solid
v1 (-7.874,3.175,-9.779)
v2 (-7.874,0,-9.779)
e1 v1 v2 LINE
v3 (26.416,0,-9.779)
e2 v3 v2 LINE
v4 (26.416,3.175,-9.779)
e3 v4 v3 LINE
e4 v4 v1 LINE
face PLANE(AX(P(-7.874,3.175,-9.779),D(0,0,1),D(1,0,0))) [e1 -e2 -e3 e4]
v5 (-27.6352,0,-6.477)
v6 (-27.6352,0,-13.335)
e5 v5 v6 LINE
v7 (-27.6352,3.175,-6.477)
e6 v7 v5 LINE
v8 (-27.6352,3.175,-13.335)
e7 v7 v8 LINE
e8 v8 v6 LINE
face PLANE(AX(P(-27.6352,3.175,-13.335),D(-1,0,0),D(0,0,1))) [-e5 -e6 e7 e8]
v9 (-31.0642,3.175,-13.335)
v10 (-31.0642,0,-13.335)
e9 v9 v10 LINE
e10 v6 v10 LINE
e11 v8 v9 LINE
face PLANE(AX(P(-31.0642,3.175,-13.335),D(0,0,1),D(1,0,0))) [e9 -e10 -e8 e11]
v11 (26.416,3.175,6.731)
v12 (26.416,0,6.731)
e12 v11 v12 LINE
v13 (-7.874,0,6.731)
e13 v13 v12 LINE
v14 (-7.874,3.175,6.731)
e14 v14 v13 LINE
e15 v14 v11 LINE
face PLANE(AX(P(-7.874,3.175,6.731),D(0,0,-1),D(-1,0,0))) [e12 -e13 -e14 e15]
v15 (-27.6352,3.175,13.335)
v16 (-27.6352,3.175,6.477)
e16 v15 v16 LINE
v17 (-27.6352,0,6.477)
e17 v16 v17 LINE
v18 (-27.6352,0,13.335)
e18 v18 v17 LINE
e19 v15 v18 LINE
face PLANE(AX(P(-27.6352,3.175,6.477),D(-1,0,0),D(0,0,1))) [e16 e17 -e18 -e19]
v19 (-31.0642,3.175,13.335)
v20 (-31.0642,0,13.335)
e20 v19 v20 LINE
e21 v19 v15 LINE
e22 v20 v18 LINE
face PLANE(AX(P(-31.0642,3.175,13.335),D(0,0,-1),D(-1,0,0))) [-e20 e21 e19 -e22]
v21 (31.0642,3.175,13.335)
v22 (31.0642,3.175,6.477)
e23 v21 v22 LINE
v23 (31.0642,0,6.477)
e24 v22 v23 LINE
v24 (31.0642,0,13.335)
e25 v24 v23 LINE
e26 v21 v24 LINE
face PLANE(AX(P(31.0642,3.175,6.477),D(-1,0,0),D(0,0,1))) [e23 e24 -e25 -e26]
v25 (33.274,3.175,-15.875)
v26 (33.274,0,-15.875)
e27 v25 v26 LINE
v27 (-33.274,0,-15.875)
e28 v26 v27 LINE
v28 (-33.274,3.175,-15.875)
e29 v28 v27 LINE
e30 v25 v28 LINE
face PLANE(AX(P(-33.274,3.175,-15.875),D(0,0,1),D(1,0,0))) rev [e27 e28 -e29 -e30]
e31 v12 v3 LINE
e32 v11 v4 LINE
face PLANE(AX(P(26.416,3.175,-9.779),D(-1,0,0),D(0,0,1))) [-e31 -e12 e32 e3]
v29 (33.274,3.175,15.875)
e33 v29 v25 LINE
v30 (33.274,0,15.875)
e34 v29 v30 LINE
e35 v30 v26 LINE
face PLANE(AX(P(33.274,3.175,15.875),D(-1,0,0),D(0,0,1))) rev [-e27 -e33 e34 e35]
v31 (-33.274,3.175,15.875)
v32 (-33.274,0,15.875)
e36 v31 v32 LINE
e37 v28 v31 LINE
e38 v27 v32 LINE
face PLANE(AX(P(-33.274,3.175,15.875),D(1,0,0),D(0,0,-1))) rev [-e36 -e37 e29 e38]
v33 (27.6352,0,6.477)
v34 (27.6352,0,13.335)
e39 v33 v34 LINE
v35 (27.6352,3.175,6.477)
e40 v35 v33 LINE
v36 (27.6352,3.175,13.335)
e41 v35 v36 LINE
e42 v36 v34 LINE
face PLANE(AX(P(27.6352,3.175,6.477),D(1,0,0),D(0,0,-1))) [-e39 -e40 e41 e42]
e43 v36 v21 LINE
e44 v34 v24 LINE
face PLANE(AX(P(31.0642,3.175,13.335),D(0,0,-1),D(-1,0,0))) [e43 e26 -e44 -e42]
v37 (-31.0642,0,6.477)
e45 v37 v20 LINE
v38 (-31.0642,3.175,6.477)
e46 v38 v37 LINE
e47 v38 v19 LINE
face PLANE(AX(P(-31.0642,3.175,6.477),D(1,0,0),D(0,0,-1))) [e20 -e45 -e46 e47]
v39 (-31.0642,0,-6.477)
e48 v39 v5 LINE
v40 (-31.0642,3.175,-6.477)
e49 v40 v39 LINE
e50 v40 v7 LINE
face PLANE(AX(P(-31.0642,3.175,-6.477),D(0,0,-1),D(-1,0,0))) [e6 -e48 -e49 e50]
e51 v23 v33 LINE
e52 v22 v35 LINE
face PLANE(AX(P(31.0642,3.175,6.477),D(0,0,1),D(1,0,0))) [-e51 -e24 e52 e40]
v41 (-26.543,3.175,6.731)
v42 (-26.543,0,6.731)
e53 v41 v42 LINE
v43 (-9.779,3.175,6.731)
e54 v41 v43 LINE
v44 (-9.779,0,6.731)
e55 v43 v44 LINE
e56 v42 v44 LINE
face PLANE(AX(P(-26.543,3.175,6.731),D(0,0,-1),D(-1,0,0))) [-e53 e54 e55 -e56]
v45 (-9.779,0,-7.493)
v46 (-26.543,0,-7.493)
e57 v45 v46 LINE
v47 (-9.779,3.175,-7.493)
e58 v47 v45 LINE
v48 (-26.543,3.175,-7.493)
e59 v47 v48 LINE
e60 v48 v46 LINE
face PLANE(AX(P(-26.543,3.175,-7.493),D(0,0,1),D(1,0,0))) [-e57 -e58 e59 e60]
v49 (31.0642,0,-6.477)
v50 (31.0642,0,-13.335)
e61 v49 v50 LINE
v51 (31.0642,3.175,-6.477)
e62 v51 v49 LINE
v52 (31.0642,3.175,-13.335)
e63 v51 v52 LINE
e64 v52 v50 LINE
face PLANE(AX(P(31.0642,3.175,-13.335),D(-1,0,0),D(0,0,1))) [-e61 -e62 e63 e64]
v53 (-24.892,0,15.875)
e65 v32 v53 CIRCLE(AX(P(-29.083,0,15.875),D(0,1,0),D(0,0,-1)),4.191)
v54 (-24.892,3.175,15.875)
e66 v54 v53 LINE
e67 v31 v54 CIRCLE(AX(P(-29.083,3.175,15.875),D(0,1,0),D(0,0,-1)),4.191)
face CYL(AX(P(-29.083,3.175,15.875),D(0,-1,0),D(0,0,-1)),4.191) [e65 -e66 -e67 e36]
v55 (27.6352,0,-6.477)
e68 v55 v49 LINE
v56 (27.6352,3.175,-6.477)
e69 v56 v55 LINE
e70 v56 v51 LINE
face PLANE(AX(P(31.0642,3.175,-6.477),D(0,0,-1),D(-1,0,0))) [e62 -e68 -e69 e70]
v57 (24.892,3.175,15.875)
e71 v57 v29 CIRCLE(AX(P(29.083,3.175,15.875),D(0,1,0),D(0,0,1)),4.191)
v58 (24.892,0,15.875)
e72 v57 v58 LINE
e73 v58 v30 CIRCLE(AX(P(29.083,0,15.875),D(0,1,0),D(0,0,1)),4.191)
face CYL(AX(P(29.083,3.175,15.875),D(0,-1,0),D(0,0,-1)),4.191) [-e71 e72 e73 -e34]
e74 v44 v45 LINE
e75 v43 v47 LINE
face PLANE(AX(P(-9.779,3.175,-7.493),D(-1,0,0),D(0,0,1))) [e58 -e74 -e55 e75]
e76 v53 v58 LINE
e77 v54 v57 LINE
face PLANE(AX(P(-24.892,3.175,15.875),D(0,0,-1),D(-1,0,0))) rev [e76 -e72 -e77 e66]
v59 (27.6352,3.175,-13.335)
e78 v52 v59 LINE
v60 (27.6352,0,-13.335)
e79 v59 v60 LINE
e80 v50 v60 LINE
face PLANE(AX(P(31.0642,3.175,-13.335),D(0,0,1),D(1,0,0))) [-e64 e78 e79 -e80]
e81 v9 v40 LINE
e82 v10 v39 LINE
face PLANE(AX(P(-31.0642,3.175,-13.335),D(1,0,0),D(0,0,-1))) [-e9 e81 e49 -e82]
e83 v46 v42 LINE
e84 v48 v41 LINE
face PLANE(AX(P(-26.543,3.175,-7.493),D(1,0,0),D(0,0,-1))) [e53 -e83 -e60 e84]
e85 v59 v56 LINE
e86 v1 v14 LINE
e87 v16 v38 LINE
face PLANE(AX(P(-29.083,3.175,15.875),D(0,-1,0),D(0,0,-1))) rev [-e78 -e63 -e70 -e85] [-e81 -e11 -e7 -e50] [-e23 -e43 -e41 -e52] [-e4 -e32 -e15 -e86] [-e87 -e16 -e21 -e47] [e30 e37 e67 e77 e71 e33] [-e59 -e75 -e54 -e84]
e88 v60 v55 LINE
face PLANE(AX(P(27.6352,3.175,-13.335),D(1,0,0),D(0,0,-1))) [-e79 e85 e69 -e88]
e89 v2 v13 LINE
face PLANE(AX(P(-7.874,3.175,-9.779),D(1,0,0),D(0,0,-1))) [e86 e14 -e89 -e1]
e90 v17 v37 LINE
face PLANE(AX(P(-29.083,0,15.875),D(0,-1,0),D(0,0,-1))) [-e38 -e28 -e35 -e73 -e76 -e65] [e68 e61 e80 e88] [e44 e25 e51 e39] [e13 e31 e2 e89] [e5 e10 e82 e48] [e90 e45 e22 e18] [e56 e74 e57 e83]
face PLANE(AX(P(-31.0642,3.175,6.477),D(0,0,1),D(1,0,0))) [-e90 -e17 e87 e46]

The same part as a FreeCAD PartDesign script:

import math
import FreeCAD as App
import Part
import Sketcher

V = App.Vector
Q = App.Units.Quantity


def add_polygon(sketch, points):
    """Adds a closed chain of lines whose ends are joined by coincident constraints."""
    first, n = sketch.GeometryCount, len(points)
    for a, b in zip(points, points[1:] + points[:1]):
        sketch.addGeometry(Part.LineSegment(App.Vector(*a, 0), App.Vector(*b, 0)), False)
    for i in range(n):
        sketch.addConstraint(Sketcher.Constraint("Coincident", first + i, 2, first + (i + 1) % n, 1))

doc = App.newDocument("Part")
body = doc.addObject("PartDesign::Body", "Body")

# Sketch on XZ plane
sketch1 = body.newObject("Sketcher::SketchObject", "Sketch")
sketch1.AttachmentSupport = (doc.getObject("XZ_Plane"), [""])
sketch1.MapMode = "FlatFace"
sketch1.addGeometry(Part.LineSegment(V(-24.9, 15.9, 0), V(24.9, 15.9, 0)), False)  # 0
sketch1.addGeometry(Part.ArcOfCircle(Part.Circle(V(29.1, 15.9, 0), V(0, 0, 1), 4.2), math.radians(0), math.radians(180)), False)  # 1
sketch1.addGeometry(Part.LineSegment(V(33.3, 15.9, 0), V(33.3, -15.9, 0)), False)  # 2
sketch1.addGeometry(Part.LineSegment(V(33.3, -15.9, 0), V(-33.3, -15.9, 0)), False)  # 3
sketch1.addGeometry(Part.LineSegment(V(-33.3, -15.9, 0), V(-33.3, 15.9, 0)), False)  # 4
sketch1.addGeometry(Part.ArcOfCircle(Part.Circle(V(-29.1, 15.9, 0), V(0, 0, 1), 4.2), math.radians(0), math.radians(180)), False)  # 5
add_polygon(sketch1, [(-27.6, 13.3), (-31.1, 13.3), (-31.1, 6.5), (-27.6, 6.5)])  # lines 6-9
add_polygon(sketch1, [(31.1, 13.3), (27.6, 13.3), (27.6, 6.5), (31.1, 6.5)])  # lines 10-13
add_polygon(sketch1, [(-9.8, 6.7), (-26.5, 6.7), (-26.5, -7.5), (-9.8, -7.5)])  # lines 14-17
add_polygon(sketch1, [(-27.6, -6.5), (-31.1, -6.5), (-31.1, -13.3), (-27.6, -13.3)])  # lines 18-21
add_polygon(sketch1, [(26.4, 6.7), (-7.9, 6.7), (-7.9, -9.8), (26.4, -9.8)])  # lines 22-25
add_polygon(sketch1, [(31.1, -6.5), (27.6, -6.5), (27.6, -13.3), (31.1, -13.3)])  # lines 26-29
sketch1.addConstraint(Sketcher.Constraint("Coincident", 0, 2, 1, 2))
sketch1.addConstraint(Sketcher.Constraint("Tangent", 1, 1, 2, 1))
sketch1.addConstraint(Sketcher.Constraint("Coincident", 2, 2, 3, 1))
sketch1.addConstraint(Sketcher.Constraint("Coincident", 3, 2, 4, 1))
sketch1.addConstraint(Sketcher.Constraint("Tangent", 4, 2, 5, 2))
sketch1.addConstraint(Sketcher.Constraint("Coincident", 5, 1, 0, 1))
sketch1.addConstraint(Sketcher.Constraint("Horizontal", 0))
sketch1.addConstraint(Sketcher.Constraint("Vertical", 2))
sketch1.addConstraint(Sketcher.Constraint("Horizontal", 3))
sketch1.addConstraint(Sketcher.Constraint("Vertical", 4))
sketch1.addConstraint(Sketcher.Constraint("Horizontal", 6))
sketch1.addConstraint(Sketcher.Constraint("Vertical", 7))
sketch1.addConstraint(Sketcher.Constraint("Horizontal", 8))
sketch1.addConstraint(Sketcher.Constraint("Vertical", 9))
sketch1.addConstraint(Sketcher.Constraint("Horizontal", 10))
sketch1.addConstraint(Sketcher.Constraint("Vertical", 11))
sketch1.addConstraint(Sketcher.Constraint("Horizontal", 12))
sketch1.addConstraint(Sketcher.Constraint("Vertical", 13))
sketch1.addConstraint(Sketcher.Constraint("Horizontal", 14))
sketch1.addConstraint(Sketcher.Constraint("Vertical", 15))
sketch1.addConstraint(Sketcher.Constraint("Horizontal", 16))
sketch1.addConstraint(Sketcher.Constraint("Vertical", 17))
sketch1.addConstraint(Sketcher.Constraint("Horizontal", 18))
sketch1.addConstraint(Sketcher.Constraint("Vertical", 19))
sketch1.addConstraint(Sketcher.Constraint("Horizontal", 20))
sketch1.addConstraint(Sketcher.Constraint("Vertical", 21))
sketch1.addConstraint(Sketcher.Constraint("Horizontal", 22))
sketch1.addConstraint(Sketcher.Constraint("Vertical", 23))
sketch1.addConstraint(Sketcher.Constraint("Horizontal", 24))
sketch1.addConstraint(Sketcher.Constraint("Vertical", 25))
sketch1.addConstraint(Sketcher.Constraint("Horizontal", 26))
sketch1.addConstraint(Sketcher.Constraint("Vertical", 27))
sketch1.addConstraint(Sketcher.Constraint("Horizontal", 28))
sketch1.addConstraint(Sketcher.Constraint("Vertical", 29))
sketch1.addConstraint(Sketcher.Constraint("Equal", 1, 5))
sketch1.addConstraint(Sketcher.Constraint("Symmetric", 1, 1, 3, 2, -1, 1))
sketch1.addConstraint(Sketcher.Constraint("Symmetric", 12, 2, 18, 2, -1, 1))
sketch1.addConstraint(Sketcher.Constraint("Symmetric", 10, 2, 20, 2, -1, 1))
sketch1.addConstraint(Sketcher.Constraint("Symmetric", 8, 2, 26, 2, -1, 1))
sketch1.addConstraint(Sketcher.Constraint("Symmetric", 6, 2, 28, 2, -1, 1))
sketch1.addConstraint(Sketcher.Constraint("Symmetric", 9, 2, 10, 2, -2))
sketch1.addConstraint(Sketcher.Constraint("Symmetric", 7, 2, 12, 2, -2))
sketch1.addConstraint(Sketcher.Constraint("Horizontal", 1, 3, 5, 3))
sketch1.addConstraint(Sketcher.Constraint("Horizontal", 5, 3, 0, 2))
sketch1.addConstraint(Sketcher.Constraint("Horizontal", 17, 2, 22, 2))
sketch1.addConstraint(Sketcher.Constraint("Radius", 1, Q("0.165 in")))
sketch1.addConstraint(Sketcher.Constraint("DistanceX", 0, 1, 0, 2, Q("1.96 in")))
sketch1.addConstraint(Sketcher.Constraint("DistanceX", 14, 2, 14, 1, Q("0.66 in")))
sketch1.addConstraint(Sketcher.Constraint("DistanceX", 22, 2, 22, 1, Q("1.35 in")))
sketch1.addConstraint(Sketcher.Constraint("DistanceY", 2, 2, 2, 1, Q("1.25 in")))
sketch1.addConstraint(Sketcher.Constraint("DistanceY", 7, 2, 7, 1, Q("0.27 in")))
sketch1.addConstraint(Sketcher.Constraint("DistanceY", 15, 2, 15, 1, Q("0.56 in")))
sketch1.addConstraint(Sketcher.Constraint("DistanceY", 23, 2, 23, 1, Q("0.65 in")))
sketch1.addConstraint(Sketcher.Constraint("DistanceY", 6, 2, 5, 3, Q("0.1 in")))
sketch1.addConstraint(Sketcher.Constraint("DistanceX", 6, 2, 6, 1, Q("0.135 in")))
sketch1.addConstraint(Sketcher.Constraint("DistanceX", 22, 2, -1, 1, Q("0.31 in")))
sketch1.addConstraint(Sketcher.Constraint("DistanceY", 8, 2, 14, 2, Q("0.01 in")))
sketch1.addConstraint(Sketcher.Constraint("DistanceX", 6, 2, -1, 1, Q("1.223 in")))
sketch1.addConstraint(Sketcher.Constraint("DistanceX", 14, 2, -1, 1, Q("1.045 in")))
pad1 = body.newObject("PartDesign::Pad", "Pad")
pad1.Profile = sketch1
pad1.Length = Q("0.125 in")
pad1.Reversed = True

doc.recompute()
